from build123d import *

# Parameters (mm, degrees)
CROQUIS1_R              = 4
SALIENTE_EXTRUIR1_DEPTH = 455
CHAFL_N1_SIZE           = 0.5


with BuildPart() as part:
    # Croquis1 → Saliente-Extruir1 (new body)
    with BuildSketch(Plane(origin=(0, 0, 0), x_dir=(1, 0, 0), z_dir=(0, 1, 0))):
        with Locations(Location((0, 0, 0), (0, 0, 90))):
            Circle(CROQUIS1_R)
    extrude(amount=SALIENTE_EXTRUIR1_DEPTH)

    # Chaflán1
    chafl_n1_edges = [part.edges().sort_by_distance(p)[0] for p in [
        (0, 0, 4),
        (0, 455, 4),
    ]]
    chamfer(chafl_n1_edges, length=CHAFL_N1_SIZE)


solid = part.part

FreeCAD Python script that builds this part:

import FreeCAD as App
import Part
import Sketcher

V = App.Vector
Q = App.Units.Quantity


def edges_at(feature, points):
    """Names of the edges that pass closest to the given points."""
    edges = feature.Shape.Edges
    near = lambda p: min(range(len(edges)), key=lambda i: edges[i].distToShape(Part.Vertex(*p))[0])
    return sorted({f"Edge{near(p) + 1}" for p in points})

doc = App.newDocument("Part")
body = doc.addObject("PartDesign::Body", "Body")

sketch1 = body.newObject("Sketcher::SketchObject", "Sketch")
sketch1.AttachmentSupport = (doc.getObject("XZ_Plane"), [""])
sketch1.MapMode = "FlatFace"
sketch1.addGeometry(Part.Circle(V(0, 0, 0), V(0, 0, 1), 4), False)
sketch1.addConstraint(Sketcher.Constraint("Coincident", 0, 3, -1, 1))
sketch1.addConstraint(Sketcher.Constraint("Diameter", 0, Q("8 mm")))
pad1 = body.newObject("PartDesign::Pad", "Pad")
pad1.Profile = sketch1
pad1.Length = 455
pad1.Reversed = True
doc.recompute()

chamfer = body.newObject("PartDesign::Chamfer", "Chamfer")
chamfer.Base = (pad1, edges_at(pad1, [(0, 0, 4), (0, 455, 4)]))
chamfer.Size = 0.5

doc.recompute()
